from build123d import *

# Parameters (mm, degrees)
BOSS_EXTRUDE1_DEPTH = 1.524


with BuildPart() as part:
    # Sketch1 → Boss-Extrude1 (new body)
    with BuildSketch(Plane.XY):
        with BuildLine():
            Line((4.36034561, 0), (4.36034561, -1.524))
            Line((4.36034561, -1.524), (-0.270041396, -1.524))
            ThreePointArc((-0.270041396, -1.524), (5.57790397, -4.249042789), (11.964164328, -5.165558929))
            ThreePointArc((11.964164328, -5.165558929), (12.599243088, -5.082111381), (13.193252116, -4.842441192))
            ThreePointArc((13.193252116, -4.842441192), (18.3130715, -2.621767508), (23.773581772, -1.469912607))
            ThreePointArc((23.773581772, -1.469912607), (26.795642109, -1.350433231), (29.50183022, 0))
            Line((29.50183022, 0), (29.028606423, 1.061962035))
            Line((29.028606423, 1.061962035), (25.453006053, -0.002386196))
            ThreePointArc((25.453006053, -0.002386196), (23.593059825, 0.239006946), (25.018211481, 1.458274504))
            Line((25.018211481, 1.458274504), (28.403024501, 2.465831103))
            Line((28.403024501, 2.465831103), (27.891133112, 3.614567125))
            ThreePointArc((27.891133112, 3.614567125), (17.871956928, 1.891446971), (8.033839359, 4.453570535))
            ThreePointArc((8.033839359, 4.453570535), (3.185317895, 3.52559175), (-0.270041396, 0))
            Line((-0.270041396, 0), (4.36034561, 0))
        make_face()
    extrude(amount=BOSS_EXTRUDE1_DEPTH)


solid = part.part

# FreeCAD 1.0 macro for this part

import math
import FreeCAD as App
import Part
import Sketcher

V = App.Vector
Q = App.Units.Quantity

doc = App.newDocument("Part")
body = doc.addObject("PartDesign::Body", "Body")

sketch1 = doc.addObject("Sketcher::SketchObject", "Sketch")
body.addObject(sketch1)
sketch1.AttachmentSupport = (doc.XY_Plane, [""])
sketch1.MapMode = "FlatFace"
sketch1.addGeometry(Part.LineSegment(V(4.4, 0, 0), V(4.4, -1.5, 0)), False)
sketch1.addGeometry(Part.LineSegment(V(4.4, -1.5, 0), V(-0.3, -1.5, 0)), False)
sketch1.addGeometry(Part.ArcOfCircle(Part.Circle(V(11.9, 16.9, 0), V(0, 0, 1), 22.1), math.radians(-123), math.radians(-90)), False)
sketch1.addGeometry(Part.ArcOfCircle(Part.Circle(V(12, -2.6, 0), V(0, 0, 1), 2.5), math.radians(-90), math.radians(-61)), False)
sketch1.addGeometry(Part.ArcOfCircle(Part.Circle(V(26.7, -29.1, 0), V(0, 0, 1), 27.8), math.radians(96), math.radians(119)), False)
sketch1.addGeometry(Part.ArcOfCircle(Part.Circle(V(25, 5.6, 0), V(0, 0, 1), 7.2), math.radians(-100), math.radians(-51)), False)
sketch1.addGeometry(Part.LineSegment(V(29.5, 0, 0), V(29, 1.1, 0)), False)
sketch1.addGeometry(Part.LineSegment(V(29, 1.1, 0), V(25.5, 0, 0)), False)
sketch1.addGeometry(Part.ArcOfCircle(Part.Circle(V(24.6, 0.5, 0), V(0, 0, 1), 1), math.radians(65), math.radians(329)), False)
sketch1.addGeometry(Part.LineSegment(V(25, 1.5, 0), V(28.4, 2.5, 0)), False)
sketch1.addGeometry(Part.LineSegment(V(28.4, 2.5, 0), V(27.9, 3.6, 0)), False)
sketch1.addGeometry(Part.ArcOfCircle(Part.Circle(V(18.9, 26, 0), V(0, 0, 1), 24.1), math.radians(-117), math.radians(-68)), False)
sketch1.addGeometry(Part.ArcOfCircle(Part.Circle(V(7.1, -3.8, 0), V(0, 0, 1), 8.3), math.radians(83), math.radians(153)), False)
sketch1.addGeometry(Part.LineSegment(V(-0.3, 0, 0), V(4.4, 0, 0)), False)
sketch1.addConstraint(Sketcher.Constraint("Coincident", 0, 2, 1, 1))
sketch1.addConstraint(Sketcher.Constraint("Coincident", 1, 2, 2, 1))
sketch1.addConstraint(Sketcher.Constraint("Tangent", 2, 2, 3, 1))
sketch1.addConstraint(Sketcher.Constraint("Tangent", 3, 2, 4, 2))
sketch1.addConstraint(Sketcher.Constraint("Coincident", 4, 1, 5, 1))
sketch1.addConstraint(Sketcher.Constraint("Coincident", 5, 2, 6, 1))
sketch1.addConstraint(Sketcher.Constraint("Coincident", 6, 2, 7, 1))
sketch1.addConstraint(Sketcher.Constraint("Coincident", 7, 2, 8, 2))
sketch1.addConstraint(Sketcher.Constraint("Coincident", 8, 1, 9, 1))
sketch1.addConstraint(Sketcher.Constraint("Coincident", 9, 2, 10, 1))
sketch1.addConstraint(Sketcher.Constraint("Coincident", 10, 2, 11, 2))
sketch1.addConstraint(Sketcher.Constraint("Coincident", 11, 1, 12, 1))
sketch1.addConstraint(Sketcher.Constraint("Coincident", 12, 2, 13, 1))
sketch1.addConstraint(Sketcher.Constraint("Coincident", 13, 2, 0, 1))
sketch1.addConstraint(Sketcher.Constraint("Vertical", 0))
sketch1.addConstraint(Sketcher.Constraint("Horizontal", 1))
sketch1.addConstraint(Sketcher.Constraint("Horizontal", 13))
sketch1.addConstraint(Sketcher.Constraint("PointOnObject", 5, 2, -1))
sketch1.addConstraint(Sketcher.Constraint("PointOnObject", 12, 2, -1))
sketch1.addConstraint(Sketcher.Constraint("Parallel", 7, 9))
sketch1.addConstraint(Sketcher.Constraint("Parallel", 6, 10))
sketch1.addConstraint(Sketcher.Constraint("Vertical", 1, 2, 12, 2))
sketch1.addConstraint(Sketcher.Constraint("Radius", 3, Q("0.1 in")))
sketch1.addConstraint(Sketcher.Constraint("DistanceY", 0, 2, 0, 1, Q("0.06 in")))
sketch1.addConstraint(Sketcher.Constraint("Radius", 2, Q("22.059138 mm")))
sketch1.addConstraint(Sketcher.Constraint("Radius", 4, Q("27.762378 mm")))
sketch1.addConstraint(Sketcher.Constraint("Radius", 5, Q("7.197725 mm")))
sketch1.addConstraint(Sketcher.Constraint("Radius", 8, Q("1.026293 mm")))
sketch1.addConstraint(Sketcher.Constraint("Radius", 11, Q("24.096857 mm")))
sketch1.addConstraint(Sketcher.Constraint("Radius", 12, Q("8.267437 mm")))
sketch1.addConstraint(Sketcher.Constraint("DistanceX", -1, 1, 8, 3, Q("24.576699 mm")))
sketch1.addConstraint(Sketcher.Constraint("DistanceX", 11, 3, 4, 3, Q("7.855301 mm")))
sketch1.addConstraint(Sketcher.Constraint("DistanceX", 12, 3, 2, 3, Q("4.778199 mm")))
sketch1.addConstraint(Sketcher.Constraint("DistanceX", 7, 2, 6, 2, Q("3.5756 mm")))
sketch1.addConstraint(Sketcher.Constraint("DistanceX", 5, 3, 8, 1, Q("0.011598 mm")))
sketch1.addConstraint(Sketcher.Constraint("DistanceX", 11, 1, 3, 3, Q("3.919601 mm")))
sketch1.addConstraint(Sketcher.Constraint("Distance", 6, Q("1.162628 mm")))
sketch1.addConstraint(Sketcher.Constraint("Distance", 7, Q("3.730651 mm")))
sketch1.addConstraint(Sketcher.Constraint("Distance", 9, Q("3.53159 mm")))
sketch1.addConstraint(Sketcher.Constraint("DistanceX", 1, 2, 1, 1, Q("4.630387 mm")))
sketch1.addConstraint(Sketcher.Constraint("DistanceX", -1, 1, 2, 3, Q("11.871029 mm")))
sketch1.addConstraint(Sketcher.Constraint("DistanceX", -1, 1, 3, 3, Q("11.95344 mm")))
sketch1.addConstraint(Sketcher.Constraint("DistanceY", 3, 3, -1, 1, Q("2.625582 mm")))
sketch1.addConstraint(Sketcher.Constraint("DistanceY", 4, 3, -1, 1, Q("29.072872 mm")))
sketch1.addConstraint(Sketcher.Constraint("DistanceY", -1, 1, 5, 3, Q("5.621412 mm")))
sketch1.addConstraint(Sketcher.Constraint("DistanceX", -1, 1, 4, 1, Q("23.773582 mm")))
sketch1.addConstraint(Sketcher.Constraint("DistanceY", -1, 1, 9, 2, Q("2.465831 mm")))
pad1 = doc.addObject("PartDesign::Pad", "Pad")
body.addObject(pad1)
pad1.Profile = sketch1
pad1.Length = Q("0.06 in")

doc.recompute()
